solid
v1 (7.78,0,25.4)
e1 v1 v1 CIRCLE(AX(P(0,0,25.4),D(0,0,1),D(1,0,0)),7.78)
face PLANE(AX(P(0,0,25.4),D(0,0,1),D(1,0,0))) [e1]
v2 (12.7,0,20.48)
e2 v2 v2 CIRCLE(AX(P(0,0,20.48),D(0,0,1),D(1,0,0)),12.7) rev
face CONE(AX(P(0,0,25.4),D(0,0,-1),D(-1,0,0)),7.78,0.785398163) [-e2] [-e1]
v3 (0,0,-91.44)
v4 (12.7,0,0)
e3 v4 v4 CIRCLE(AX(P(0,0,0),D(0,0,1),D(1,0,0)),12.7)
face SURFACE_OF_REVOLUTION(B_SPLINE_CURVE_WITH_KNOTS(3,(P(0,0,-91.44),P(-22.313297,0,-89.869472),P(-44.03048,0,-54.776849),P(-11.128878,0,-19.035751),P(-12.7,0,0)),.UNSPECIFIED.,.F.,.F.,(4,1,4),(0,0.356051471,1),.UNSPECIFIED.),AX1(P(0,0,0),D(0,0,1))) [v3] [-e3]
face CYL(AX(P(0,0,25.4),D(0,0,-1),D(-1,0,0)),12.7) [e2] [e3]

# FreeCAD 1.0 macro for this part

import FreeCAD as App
import Part
import Sketcher
from FreeCAD import Vector
Q = App.Units.Quantity


def edges_at(feature, points):
    """Names of the edges that pass closest to the given points."""
    edges = feature.Shape.Edges
    near = lambda p: min(range(len(edges)), key=lambda i: edges[i].distToShape(Part.Vertex(*p))[0])
    return sorted({f"Edge{near(p) + 1}" for p in points})

doc = App.newDocument("Part")
body = doc.addObject("PartDesign::Body", "Body")

# Sketch on XY plane
sketch1 = body.newObject("Sketcher::SketchObject", "Sketch")
sketch1.AttachmentSupport = (doc.getObject("XY_Plane"), [""])
sketch1.MapMode = "FlatFace"
sketch1.addGeometry(Part.Circle(Vector(0, 0, 0), Vector(0, 0, 1), 12.7), False)
sketch1.addConstraint(Sketcher.Constraint("Coincident", 0, 3, -1, 1))
sketch1.addConstraint(Sketcher.Constraint("Diameter", 0, Q("1 in")))
pad1 = body.newObject("PartDesign::Pad", "Pad")
pad1.Profile = sketch1
pad1.Length = Q("1 in")

# Sketch on XZ plane
sketch2 = body.newObject("Sketcher::SketchObject", "Sketch001")
sketch2.AttachmentSupport = (doc.getObject("XZ_Plane"), [""])
sketch2.MapMode = "FlatFace"
sketch2.addGeometry(Part.LineSegment(Vector(0, 0, 0), Vector(0, -91.44, 0)), False)
sketch2.addGeometry(Part.BSplineCurve([Vector(0, -91.44, 0), Vector(-22.313297, -89.869472, 0), Vector(-44.03048, -54.776849, 0), Vector(-11.128878, -19.035751, 0), Vector(-12.7, 0, 0)], [4, 1, 4], [0, 0.356051471, 1], False, 3, [1, 1, 1, 1, 1], False), False)
sketch2.addGeometry(Part.LineSegment(Vector(-12.7, 0, 0), Vector(0, 0, 0)), False)
sketch2.addConstraint(Sketcher.Constraint("Block", 1))
sketch2.addConstraint(Sketcher.Constraint("Coincident", 0, 2, 1, 1))
sketch2.addConstraint(Sketcher.Constraint("Coincident", 1, 2, 2, 1))
sketch2.addConstraint(Sketcher.Constraint("Coincident", 2, 2, 0, 1))
sketch2.addConstraint(Sketcher.Constraint("Vertical", 0))
sketch2.addConstraint(Sketcher.Constraint("Horizontal", 2))
revolution = body.newObject("PartDesign::Revolution", "Revolution")
revolution.Profile = sketch2
revolution.ReferenceAxis = (sketch2, ["V_Axis"])
revolution.Angle = 360
doc.recompute()

chamfer = body.newObject("PartDesign::Chamfer", "Chamfer")
chamfer.Base = (revolution, edges_at(revolution, [(-12.7, 0, 25.4)]))
chamfer.Size = 4.92

doc.recompute()
